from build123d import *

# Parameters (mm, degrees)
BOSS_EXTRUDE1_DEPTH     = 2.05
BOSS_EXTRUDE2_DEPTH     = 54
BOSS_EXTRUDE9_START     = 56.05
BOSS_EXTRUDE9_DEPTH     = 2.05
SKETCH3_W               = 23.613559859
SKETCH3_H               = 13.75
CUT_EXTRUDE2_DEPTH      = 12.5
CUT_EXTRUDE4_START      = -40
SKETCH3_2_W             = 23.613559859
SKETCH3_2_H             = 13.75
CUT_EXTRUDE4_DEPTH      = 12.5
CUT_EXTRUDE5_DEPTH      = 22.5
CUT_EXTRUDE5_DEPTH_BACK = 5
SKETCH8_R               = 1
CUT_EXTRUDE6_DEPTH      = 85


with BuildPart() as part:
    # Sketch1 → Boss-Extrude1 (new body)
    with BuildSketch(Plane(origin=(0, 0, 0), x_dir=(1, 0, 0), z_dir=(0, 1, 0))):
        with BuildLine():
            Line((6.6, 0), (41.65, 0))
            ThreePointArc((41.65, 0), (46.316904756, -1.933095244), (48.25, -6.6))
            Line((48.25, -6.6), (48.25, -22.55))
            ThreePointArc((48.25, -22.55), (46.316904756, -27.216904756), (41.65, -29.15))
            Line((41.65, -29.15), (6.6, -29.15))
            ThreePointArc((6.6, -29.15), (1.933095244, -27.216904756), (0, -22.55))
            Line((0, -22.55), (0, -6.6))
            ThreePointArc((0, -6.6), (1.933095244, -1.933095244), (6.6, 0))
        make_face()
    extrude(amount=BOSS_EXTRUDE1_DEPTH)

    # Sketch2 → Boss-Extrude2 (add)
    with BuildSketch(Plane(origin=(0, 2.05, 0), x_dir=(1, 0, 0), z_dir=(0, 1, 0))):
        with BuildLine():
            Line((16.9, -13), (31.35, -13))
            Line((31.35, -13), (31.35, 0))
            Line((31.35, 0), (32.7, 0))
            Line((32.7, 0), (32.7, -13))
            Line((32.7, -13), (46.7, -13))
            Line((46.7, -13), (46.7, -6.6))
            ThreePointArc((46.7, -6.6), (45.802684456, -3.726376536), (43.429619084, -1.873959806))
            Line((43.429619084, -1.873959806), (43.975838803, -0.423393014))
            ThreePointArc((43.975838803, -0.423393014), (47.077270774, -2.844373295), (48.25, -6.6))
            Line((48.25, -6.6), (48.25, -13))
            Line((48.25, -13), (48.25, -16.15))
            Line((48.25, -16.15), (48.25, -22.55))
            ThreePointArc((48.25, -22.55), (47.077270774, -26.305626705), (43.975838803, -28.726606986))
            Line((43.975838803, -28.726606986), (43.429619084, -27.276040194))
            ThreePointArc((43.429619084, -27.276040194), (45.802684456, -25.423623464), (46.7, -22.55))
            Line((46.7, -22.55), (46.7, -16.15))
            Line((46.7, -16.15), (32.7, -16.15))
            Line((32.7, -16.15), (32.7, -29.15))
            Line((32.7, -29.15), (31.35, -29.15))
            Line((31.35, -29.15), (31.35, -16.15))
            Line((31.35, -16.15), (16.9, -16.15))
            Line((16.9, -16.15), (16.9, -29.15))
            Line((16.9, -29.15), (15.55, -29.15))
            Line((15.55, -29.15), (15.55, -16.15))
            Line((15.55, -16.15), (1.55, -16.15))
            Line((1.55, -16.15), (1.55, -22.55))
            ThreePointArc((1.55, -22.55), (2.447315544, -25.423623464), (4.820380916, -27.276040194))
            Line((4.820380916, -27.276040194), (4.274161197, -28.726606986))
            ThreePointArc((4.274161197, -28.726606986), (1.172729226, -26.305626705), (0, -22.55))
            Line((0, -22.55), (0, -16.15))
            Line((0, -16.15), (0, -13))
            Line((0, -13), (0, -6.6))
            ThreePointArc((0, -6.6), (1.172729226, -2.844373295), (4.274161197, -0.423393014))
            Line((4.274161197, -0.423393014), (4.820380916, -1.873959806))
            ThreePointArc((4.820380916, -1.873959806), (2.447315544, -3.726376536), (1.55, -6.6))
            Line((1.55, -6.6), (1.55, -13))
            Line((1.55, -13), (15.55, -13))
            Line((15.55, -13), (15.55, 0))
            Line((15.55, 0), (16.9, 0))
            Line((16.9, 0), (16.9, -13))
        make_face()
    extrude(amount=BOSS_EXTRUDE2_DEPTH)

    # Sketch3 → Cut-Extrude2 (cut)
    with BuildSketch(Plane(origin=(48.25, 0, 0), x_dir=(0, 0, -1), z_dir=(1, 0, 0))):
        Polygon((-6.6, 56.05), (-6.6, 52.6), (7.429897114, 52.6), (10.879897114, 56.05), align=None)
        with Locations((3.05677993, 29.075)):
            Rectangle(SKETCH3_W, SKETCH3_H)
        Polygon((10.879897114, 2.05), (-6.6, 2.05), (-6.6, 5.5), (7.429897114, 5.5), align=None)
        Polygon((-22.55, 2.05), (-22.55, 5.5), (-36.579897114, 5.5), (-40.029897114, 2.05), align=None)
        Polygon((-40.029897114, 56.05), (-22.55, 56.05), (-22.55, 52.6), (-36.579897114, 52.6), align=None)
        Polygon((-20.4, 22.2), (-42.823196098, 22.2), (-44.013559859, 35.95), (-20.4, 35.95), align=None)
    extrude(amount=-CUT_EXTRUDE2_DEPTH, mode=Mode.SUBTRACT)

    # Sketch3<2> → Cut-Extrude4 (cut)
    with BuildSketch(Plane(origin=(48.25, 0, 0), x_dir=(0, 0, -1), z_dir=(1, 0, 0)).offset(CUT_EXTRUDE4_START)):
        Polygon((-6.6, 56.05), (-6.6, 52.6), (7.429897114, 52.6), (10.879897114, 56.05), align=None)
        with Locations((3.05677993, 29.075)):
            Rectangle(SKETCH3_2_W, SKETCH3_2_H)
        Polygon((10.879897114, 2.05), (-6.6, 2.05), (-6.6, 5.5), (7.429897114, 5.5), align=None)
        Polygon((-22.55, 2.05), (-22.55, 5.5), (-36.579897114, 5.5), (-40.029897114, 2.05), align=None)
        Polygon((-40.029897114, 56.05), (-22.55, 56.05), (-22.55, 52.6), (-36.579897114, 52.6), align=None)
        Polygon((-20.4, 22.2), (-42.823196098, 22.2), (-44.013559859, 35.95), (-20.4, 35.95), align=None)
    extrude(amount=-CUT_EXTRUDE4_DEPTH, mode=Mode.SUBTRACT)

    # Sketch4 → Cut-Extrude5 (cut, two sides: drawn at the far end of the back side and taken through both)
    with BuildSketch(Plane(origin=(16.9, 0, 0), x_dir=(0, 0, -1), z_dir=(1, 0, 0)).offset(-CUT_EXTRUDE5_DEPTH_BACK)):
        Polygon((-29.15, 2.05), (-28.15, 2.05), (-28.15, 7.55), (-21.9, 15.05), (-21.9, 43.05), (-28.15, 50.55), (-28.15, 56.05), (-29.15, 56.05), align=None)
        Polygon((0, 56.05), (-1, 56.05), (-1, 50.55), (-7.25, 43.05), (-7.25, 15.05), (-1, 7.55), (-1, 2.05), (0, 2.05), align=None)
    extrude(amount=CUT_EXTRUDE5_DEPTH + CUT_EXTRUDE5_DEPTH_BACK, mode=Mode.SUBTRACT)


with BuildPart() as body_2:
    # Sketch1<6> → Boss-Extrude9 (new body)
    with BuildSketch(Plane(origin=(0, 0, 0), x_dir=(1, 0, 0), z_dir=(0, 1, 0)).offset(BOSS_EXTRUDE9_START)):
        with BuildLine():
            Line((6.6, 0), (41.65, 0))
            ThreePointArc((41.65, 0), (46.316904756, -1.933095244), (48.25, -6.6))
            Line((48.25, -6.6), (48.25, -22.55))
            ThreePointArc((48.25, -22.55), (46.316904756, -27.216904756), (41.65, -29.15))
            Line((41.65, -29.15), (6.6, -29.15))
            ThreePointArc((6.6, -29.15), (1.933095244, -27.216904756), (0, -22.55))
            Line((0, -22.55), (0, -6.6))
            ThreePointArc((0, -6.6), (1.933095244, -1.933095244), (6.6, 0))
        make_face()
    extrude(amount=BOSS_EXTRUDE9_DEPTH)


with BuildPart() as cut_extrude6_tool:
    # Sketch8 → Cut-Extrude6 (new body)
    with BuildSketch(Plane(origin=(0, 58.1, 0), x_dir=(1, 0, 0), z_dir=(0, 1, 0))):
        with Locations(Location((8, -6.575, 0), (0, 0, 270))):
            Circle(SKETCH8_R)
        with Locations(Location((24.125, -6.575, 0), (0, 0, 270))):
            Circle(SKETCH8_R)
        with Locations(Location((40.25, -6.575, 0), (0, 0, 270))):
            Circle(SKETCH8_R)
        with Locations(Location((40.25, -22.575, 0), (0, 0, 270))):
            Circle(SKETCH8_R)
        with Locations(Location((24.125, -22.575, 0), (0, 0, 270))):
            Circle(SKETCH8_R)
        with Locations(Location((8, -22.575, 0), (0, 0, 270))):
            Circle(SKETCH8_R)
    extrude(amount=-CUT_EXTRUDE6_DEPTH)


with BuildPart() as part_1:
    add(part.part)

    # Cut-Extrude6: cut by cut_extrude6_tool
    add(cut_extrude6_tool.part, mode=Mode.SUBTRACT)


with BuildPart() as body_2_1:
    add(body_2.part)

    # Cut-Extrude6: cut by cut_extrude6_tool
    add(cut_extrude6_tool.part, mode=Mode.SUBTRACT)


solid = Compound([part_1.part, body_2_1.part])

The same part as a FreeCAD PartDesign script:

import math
import FreeCAD as App
import Part
import Sketcher

V = App.Vector
Q = App.Units.Quantity


def add_polygon(sketch, points):
    """Adds a closed chain of lines whose ends are joined by coincident constraints."""
    first, n = sketch.GeometryCount, len(points)
    for a, b in zip(points, points[1:] + points[:1]):
        sketch.addGeometry(Part.LineSegment(App.Vector(*a, 0), App.Vector(*b, 0)), False)
    for i in range(n):
        sketch.addConstraint(Sketcher.Constraint("Coincident", first + i, 2, first + (i + 1) % n, 1))

doc = App.newDocument("Part")
body = doc.addObject("PartDesign::Body", "Body")

sketch1 = body.newObject("Sketcher::SketchObject", "Sketch")
sketch1.AttachmentSupport = (doc.getObject("XZ_Plane"), [""])
sketch1.MapMode = "FlatFace"
sketch1.addGeometry([
    Part.LineSegment(V(41.65, 0, 0), V(6.6, 0, 0)),
    Part.ArcOfCircle(Part.Circle(V(6.6, 6.6, 0), V(0, 0, 1), 6.6), math.radians(180), math.radians(270)),
    Part.LineSegment(V(0, 6.6, 0), V(0, 22.55, 0)),
    Part.ArcOfCircle(Part.Circle(V(6.6, 22.55, 0), V(0, 0, 1), 6.6), math.radians(90), math.radians(180)),
    Part.LineSegment(V(6.6, 29.15, 0), V(41.65, 29.15, 0)),
    Part.ArcOfCircle(Part.Circle(V(41.65, 22.55, 0), V(0, 0, 1), 6.6), math.radians(0), math.radians(90)),
    Part.LineSegment(V(48.25, 22.55, 0), V(48.25, 6.6, 0)),
    Part.ArcOfCircle(Part.Circle(V(41.65, 6.6, 0), V(0, 0, 1), 6.6), math.radians(-90), math.radians(0)),
], False)
sketch1.addConstraint([
    Sketcher.Constraint("Tangent", 0, 2, 1, 2),
    Sketcher.Constraint("Tangent", 1, 1, 2, 1),
    Sketcher.Constraint("Tangent", 2, 2, 3, 2),
    Sketcher.Constraint("Tangent", 3, 1, 4, 1),
    Sketcher.Constraint("Tangent", 4, 2, 5, 2),
    Sketcher.Constraint("Tangent", 5, 1, 6, 1),
    Sketcher.Constraint("Tangent", 6, 2, 7, 2),
    Sketcher.Constraint("Tangent", 7, 1, 0, 1),
    Sketcher.Constraint("Horizontal", 0),
    Sketcher.Constraint("Vertical", 2),
    Sketcher.Constraint("Horizontal", 4),
    Sketcher.Constraint("Vertical", 6),
    Sketcher.Constraint("Equal", 1, 3),
    Sketcher.Constraint("Equal", 3, 5),
    Sketcher.Constraint("Equal", 5, 7),
    Sketcher.Constraint("PointOnObject", 0, 2, -1),
    Sketcher.Constraint("PointOnObject", 1, 1, -2),
    Sketcher.Constraint("Radius", 1, Q("6.6 mm")),
    Sketcher.Constraint("DistanceX", 0, 2, 0, 1, Q("35.05 mm")),
    Sketcher.Constraint("DistanceY", 2, 1, 2, 2, Q("15.95 mm")),
])
pad1 = body.newObject("PartDesign::Pad", "Pad")
pad1.Profile = sketch1
pad1.Length = 2.05
pad1.Reversed = True

sketch2 = body.newObject("Sketcher::SketchObject", "Sketch001")
sketch2.AttachmentSupport = (doc.getObject("XZ_Plane"), [""])
sketch2.MapMode = "FlatFace"
sketch2.AttachmentOffset = App.Placement(V(0, 0, -2.05), App.Rotation())
sketch2.addGeometry([
    Part.LineSegment(V(31.35, 13, 0), V(16.9, 13, 0)),
    Part.LineSegment(V(16.9, 13, 0), V(16.9, 0, 0)),
    Part.LineSegment(V(16.9, 0, 0), V(15.55, 0, 0)),
    Part.LineSegment(V(15.55, 0, 0), V(15.55, 13, 0)),
    Part.LineSegment(V(15.55, 13, 0), V(1.55, 13, 0)),
    Part.LineSegment(V(1.55, 13, 0), V(1.55, 6.6, 0)),
    Part.ArcOfCircle(Part.Circle(V(6.6, 6.6, 0), V(0, 0, 1), 5.05), math.radians(180), math.radians(249.365831)),
    Part.LineSegment(V(4.820381, 1.87396, 0), V(4.274161, 0.423393, 0)),
    Part.ArcOfCircle(Part.Circle(V(6.6, 6.6, 0), V(0, 0, 1), 6.6), math.radians(180), math.radians(249.365831)),
    Part.LineSegment(V(0, 6.6, 0), V(0, 22.55, 0)),
    Part.ArcOfCircle(Part.Circle(V(6.6, 22.55, 0), V(0, 0, 1), 6.6), math.radians(110.634169), math.radians(180)),
    Part.LineSegment(V(4.274161, 28.726607, 0), V(4.820381, 27.27604, 0)),
    Part.ArcOfCircle(Part.Circle(V(6.6, 22.55, 0), V(0, 0, 1), 5.05), math.radians(110.634169), math.radians(180)),
    Part.LineSegment(V(1.55, 22.55, 0), V(1.55, 16.15, 0)),
    Part.LineSegment(V(1.55, 16.15, 0), V(15.55, 16.15, 0)),
    Part.LineSegment(V(15.55, 16.15, 0), V(15.55, 29.15, 0)),
    Part.LineSegment(V(15.55, 29.15, 0), V(16.9, 29.15, 0)),
    Part.LineSegment(V(16.9, 29.15, 0), V(16.9, 16.15, 0)),
    Part.LineSegment(V(16.9, 16.15, 0), V(31.35, 16.15, 0)),
    Part.LineSegment(V(31.35, 16.15, 0), V(31.35, 29.15, 0)),
    Part.LineSegment(V(31.35, 29.15, 0), V(32.7, 29.15, 0)),
    Part.LineSegment(V(32.7, 29.15, 0), V(32.7, 16.15, 0)),
    Part.LineSegment(V(32.7, 16.15, 0), V(46.7, 16.15, 0)),
    Part.LineSegment(V(46.7, 16.15, 0), V(46.7, 22.55, 0)),
    Part.ArcOfCircle(Part.Circle(V(41.65, 22.55, 0), V(0, 0, 1), 5.05), math.radians(0), math.radians(69.365831)),
    Part.LineSegment(V(43.429619, 27.27604, 0), V(43.975839, 28.726607, 0)),
    Part.ArcOfCircle(Part.Circle(V(41.65, 22.55, 0), V(0, 0, 1), 6.6), math.radians(0), math.radians(69.365831)),
    Part.LineSegment(V(48.25, 22.55, 0), V(48.25, 6.6, 0)),
    Part.ArcOfCircle(Part.Circle(V(41.65, 6.6, 0), V(0, 0, 1), 6.6), math.radians(-69.365831), math.radians(0)),
    Part.LineSegment(V(43.975839, 0.423393, 0), V(43.429619, 1.87396, 0)),
    Part.ArcOfCircle(Part.Circle(V(41.65, 6.6, 0), V(0, 0, 1), 5.05), math.radians(-69.365831), math.radians(0)),
    Part.LineSegment(V(46.7, 6.6, 0), V(46.7, 13, 0)),
    Part.LineSegment(V(46.7, 13, 0), V(32.7, 13, 0)),
    Part.LineSegment(V(32.7, 13, 0), V(32.7, 0, 0)),
    Part.LineSegment(V(32.7, 0, 0), V(31.35, 0, 0)),
    Part.LineSegment(V(31.35, 0, 0), V(31.35, 13, 0)),
], False)
sketch2.addConstraint([
    Sketcher.Constraint("Coincident", 0, 2, 1, 1),
    Sketcher.Constraint("Coincident", 1, 2, 2, 1),
    Sketcher.Constraint("Coincident", 2, 2, 3, 1),
    Sketcher.Constraint("Coincident", 3, 2, 4, 1),
    Sketcher.Constraint("Coincident", 4, 2, 5, 1),
    Sketcher.Constraint("Tangent", 5, 2, 6, 1),
    Sketcher.Constraint("Coincident", 6, 2, 7, 1),
    Sketcher.Constraint("Coincident", 7, 2, 8, 2),
    Sketcher.Constraint("Tangent", 8, 1, 9, 1),
    Sketcher.Constraint("Tangent", 9, 2, 10, 2),
    Sketcher.Constraint("Coincident", 10, 1, 11, 1),
    Sketcher.Constraint("Coincident", 11, 2, 12, 1),
    Sketcher.Constraint("Tangent", 12, 2, 13, 1),
    Sketcher.Constraint("Coincident", 13, 2, 14, 1),
    Sketcher.Constraint("Coincident", 14, 2, 15, 1),
    Sketcher.Constraint("Coincident", 15, 2, 16, 1),
    Sketcher.Constraint("Coincident", 16, 2, 17, 1),
    Sketcher.Constraint("Coincident", 17, 2, 18, 1),
    Sketcher.Constraint("Coincident", 18, 2, 19, 1),
    Sketcher.Constraint("Coincident", 19, 2, 20, 1),
    Sketcher.Constraint("Coincident", 20, 2, 21, 1),
    Sketcher.Constraint("Coincident", 21, 2, 22, 1),
    Sketcher.Constraint("Coincident", 22, 2, 23, 1),
    Sketcher.Constraint("Tangent", 23, 2, 24, 1),
    Sketcher.Constraint("Coincident", 24, 2, 25, 1),
    Sketcher.Constraint("Coincident", 25, 2, 26, 2),
    Sketcher.Constraint("Tangent", 26, 1, 27, 1),
    Sketcher.Constraint("Tangent", 27, 2, 28, 2),
    Sketcher.Constraint("Coincident", 28, 1, 29, 1),
    Sketcher.Constraint("Coincident", 29, 2, 30, 1),
    Sketcher.Constraint("Tangent", 30, 2, 31, 1),
    Sketcher.Constraint("Coincident", 31, 2, 32, 1),
    Sketcher.Constraint("Coincident", 32, 2, 33, 1),
    Sketcher.Constraint("Coincident", 33, 2, 34, 1),
    Sketcher.Constraint("Coincident", 34, 2, 35, 1),
    Sketcher.Constraint("Coincident", 35, 2, 0, 1),
    Sketcher.Constraint("Horizontal", 0),
    Sketcher.Constraint("Vertical", 1),
    Sketcher.Constraint("Horizontal", 2),
    Sketcher.Constraint("Vertical", 3),
    Sketcher.Constraint("Horizontal", 4),
    Sketcher.Constraint("Vertical", 5),
    Sketcher.Constraint("Vertical", 9),
    Sketcher.Constraint("Vertical", 13),
    Sketcher.Constraint("Horizontal", 14),
    Sketcher.Constraint("Vertical", 15),
    Sketcher.Constraint("Horizontal", 16),
    Sketcher.Constraint("Vertical", 17),
    Sketcher.Constraint("Horizontal", 18),
    Sketcher.Constraint("Vertical", 19),
    Sketcher.Constraint("Horizontal", 20),
    Sketcher.Constraint("Vertical", 21),
    Sketcher.Constraint("Horizontal", 22),
    Sketcher.Constraint("Vertical", 23),
    Sketcher.Constraint("Vertical", 27),
    Sketcher.Constraint("Vertical", 31),
    Sketcher.Constraint("Horizontal", 32),
    Sketcher.Constraint("Vertical", 33),
    Sketcher.Constraint("Horizontal", 34),
    Sketcher.Constraint("Vertical", 35),
    Sketcher.Constraint("Coincident", 8, 3, 6, 3),
    Sketcher.Constraint("Coincident", 12, 3, 10, 3),
    Sketcher.Constraint("Coincident", 26, 3, 24, 3),
    Sketcher.Constraint("Coincident", 30, 3, 28, 3),
    Sketcher.Constraint("Equal", 8, 10),
    Sketcher.Constraint("Equal", 6, 12),
    Sketcher.Constraint("Equal", 12, 24),
    Sketcher.Constraint("Equal", 10, 26),
    Sketcher.Constraint("Equal", 26, 28),
    Sketcher.Constraint("Equal", 24, 30),
    Sketcher.Constraint("PointOnObject", 1, 2, -1),
    Sketcher.Constraint("PointOnObject", 8, 1, -2),
    Sketcher.Constraint("PointOnObject", 33, 2, -1),
    Sketcher.Constraint("Parallel", 7, 25),
    Sketcher.Constraint("Parallel", 11, 29),
    Sketcher.Constraint("Horizontal", 12, 3, 24, 3),
    Sketcher.Constraint("Horizontal", 8, 3, 28, 3),
    Sketcher.Constraint("Horizontal", 0, 2, 3, 2),
    Sketcher.Constraint("Horizontal", 14, 2, 17, 2),
    Sketcher.Constraint("Horizontal", 16, 2, 19, 2),
    Sketcher.Constraint("Horizontal", 18, 2, 21, 2),
    Sketcher.Constraint("Horizontal", 11, 2, 24, 2),
    Sketcher.Constraint("Horizontal", 10, 1, 25, 2),
    Sketcher.Constraint("Horizontal", 7, 2, 28, 1),
    Sketcher.Constraint("Horizontal", 4, 2, 31, 2),
    Sketcher.Constraint("Vertical", 7, 2, 10, 1),
    Sketcher.Constraint("Vertical", 3, 2, 14, 2),
    Sketcher.Constraint("Vertical", 1, 2, 16, 2),
    Sketcher.Constraint("Vertical", 21, 2, 32, 2),
    Sketcher.Constraint("Vertical", 19, 2, 34, 2),
    Sketcher.Constraint("Equal", 16, 20),
    Sketcher.Constraint("Equal", 14, 22),
    Sketcher.Constraint("Equal", 5, 13),
    Sketcher.Constraint("Equal", 3, 15),
    Sketcher.Constraint("Radius", 8, Q("6.6 mm")),
    Sketcher.Constraint("DistanceX", 4, 2, 4, 1, Q("14 mm")),
    Sketcher.Constraint("DistanceY", 1, 2, 1, 1, Q("13 mm")),
    Sketcher.Constraint("Radius", 6, Q("5.05 mm")),
    Sketcher.Constraint("DistanceY", 5, 2, 5, 1, Q("6.4 mm")),
    Sketcher.Constraint("DistanceX", 0, 2, 0, 1, Q("14.45 mm")),
    Sketcher.Constraint("DistanceX", 2, 2, 2, 1, Q("1.35 mm")),
    Sketcher.Constraint("DistanceY", 9, 1, 9, 2, Q("15.95 mm")),
    Sketcher.Constraint("DistanceX", -1, 1, 6, 2, Q("4.820381 mm")),
    Sketcher.Constraint("DistanceX", -1, 1, 7, 2, Q("4.274161 mm")),
])
pad2 = body.newObject("PartDesign::Pad", "Pad001")
pad2.Profile = sketch2
pad2.Length = 54
pad2.Reversed = True

sketch3 = body.newObject("Sketcher::SketchObject", "Sketch002")
sketch3.AttachmentSupport = (doc.getObject("YZ_Plane"), [""])
sketch3.MapMode = "FlatFace"
sketch3.AttachmentOffset = App.Placement(V(0, 0, 48.25), App.Rotation())
add_polygon(sketch3, [(56.05, 6.6), (52.6, 6.6), (52.6, -7.429897), (56.05, -10.879897)])
add_polygon(sketch3, [(35.95, 8.75), (22.2, 8.75), (22.2, -14.86356), (35.95, -14.86356)])
add_polygon(sketch3, [(2.05, 6.6), (2.05, -10.879897), (5.5, -7.429897), (5.5, 6.6)])
add_polygon(sketch3, [(2.05, 22.55), (5.5, 22.55), (5.5, 36.579897), (2.05, 40.029897)])
add_polygon(sketch3, [(56.05, 22.55), (56.05, 40.029897), (52.6, 36.579897), (52.6, 22.55)])
add_polygon(sketch3, [(22.2, 42.823196), (22.2, 20.4), (35.95, 20.4), (35.95, 44.01356)])
sketch3.addConstraint([
    Sketcher.Constraint("Horizontal", 0),
    Sketcher.Constraint("Vertical", 1),
    Sketcher.Constraint("Vertical", 3),
    Sketcher.Constraint("Horizontal", 4),
    Sketcher.Constraint("Vertical", 5),
    Sketcher.Constraint("Horizontal", 6),
    Sketcher.Constraint("Vertical", 7),
    Sketcher.Constraint("Vertical", 8),
    Sketcher.Constraint("Vertical", 10),
    Sketcher.Constraint("Horizontal", 11),
    Sketcher.Constraint("Horizontal", 12),
    Sketcher.Constraint("Vertical", 13),
    Sketcher.Constraint("Vertical", 15),
    Sketcher.Constraint("Vertical", 16),
    Sketcher.Constraint("Vertical", 18),
    Sketcher.Constraint("Horizontal", 19),
    Sketcher.Constraint("Vertical", 20),
    Sketcher.Constraint("Horizontal", 21),
    Sketcher.Constraint("Vertical", 22),
    Sketcher.Constraint("Perpendicular", 2, 9),
    Sketcher.Constraint("Perpendicular", 9, 14),
    Sketcher.Constraint("Perpendicular", 14, 17),
    Sketcher.Constraint("Horizontal", 2, 2, 8, 2),
    Sketcher.Constraint("Horizontal", 1, 2, 9, 2),
    Sketcher.Constraint("Horizontal", 3, 2, 10, 2),
    Sketcher.Constraint("Horizontal", 14, 2, 16, 2),
    Sketcher.Constraint("Horizontal", 13, 2, 17, 2),
    Sketcher.Constraint("Horizontal", 15, 2, 18, 2),
    Sketcher.Constraint("Vertical", 10, 2, 12, 2),
    Sketcher.Constraint("Vertical", 11, 2, 14, 2),
    Sketcher.Constraint("Vertical", 3, 2, 16, 2),
    Sketcher.Constraint("Vertical", 1, 2, 17, 2),
    Sketcher.Constraint("Vertical", 5, 2, 20, 2),
    Sketcher.Constraint("Vertical", 7, 2, 21, 2),
    Sketcher.Constraint("Equal", 10, 13),
    Sketcher.Constraint("Equal", 7, 22),
    Sketcher.Constraint("DistanceX", 0, 2, 0, 1, Q("3.45 mm")),
    Sketcher.Constraint("DistanceX", 4, 2, 4, 1, Q("13.75 mm")),
    Sketcher.Constraint("DistanceX", -1, 1, 0, 2, Q("52.6 mm")),
    Sketcher.Constraint("DistanceY", -1, 1, 0, 2, Q("6.6 mm")),
    Sketcher.Constraint("DistanceX", -1, 1, 4, 2, Q("22.2 mm")),
    Sketcher.Constraint("DistanceX", -1, 1, 9, 2, Q("5.5 mm")),
    Sketcher.Constraint("DistanceY", -1, 1, 20, 2, Q("20.4 mm")),
    Sketcher.Constraint("DistanceY", 4, 2, 12, 2, Q("13.8 mm")),
    Sketcher.Constraint("DistanceY", -1, 1, 4, 2, Q("8.75 mm")),
    Sketcher.Constraint("DistanceY", 5, 2, 5, 1, Q("23.61356 mm")),
    Sketcher.Constraint("DistanceY", 13, 2, 23, 2, Q("6.243299 mm")),
    Sketcher.Constraint("Distance", 23, Q("13.80143 mm")),
])
pocket1 = body.newObject("PartDesign::Pocket", "Pocket")
pocket1.Profile = sketch3
pocket1.Length = 12.5

sketch4 = body.newObject("Sketcher::SketchObject", "Sketch003")
sketch4.AttachmentSupport = (doc.getObject("YZ_Plane"), [""])
sketch4.MapMode = "FlatFace"
sketch4.AttachmentOffset = App.Placement(V(0, 0, 8.25), App.Rotation())
add_polygon(sketch4, [(56.05, 6.6), (52.6, 6.6), (52.6, -7.429897), (56.05, -10.879897)])
add_polygon(sketch4, [(35.95, 8.75), (22.2, 8.75), (22.2, -14.86356), (35.95, -14.86356)])
add_polygon(sketch4, [(2.05, 6.6), (2.05, -10.879897), (5.5, -7.429897), (5.5, 6.6)])
add_polygon(sketch4, [(2.05, 22.55), (5.5, 22.55), (5.5, 36.579897), (2.05, 40.029897)])
add_polygon(sketch4, [(56.05, 22.55), (56.05, 40.029897), (52.6, 36.579897), (52.6, 22.55)])
add_polygon(sketch4, [(22.2, 42.823196), (22.2, 20.4), (35.95, 20.4), (35.95, 44.01356)])
sketch4.addConstraint([
    Sketcher.Constraint("Horizontal", 0),
    Sketcher.Constraint("Vertical", 1),
    Sketcher.Constraint("Vertical", 3),
    Sketcher.Constraint("Horizontal", 4),
    Sketcher.Constraint("Vertical", 5),
    Sketcher.Constraint("Horizontal", 6),
    Sketcher.Constraint("Vertical", 7),
    Sketcher.Constraint("Vertical", 8),
    Sketcher.Constraint("Vertical", 10),
    Sketcher.Constraint("Horizontal", 11),
    Sketcher.Constraint("Horizontal", 12),
    Sketcher.Constraint("Vertical", 13),
    Sketcher.Constraint("Vertical", 15),
    Sketcher.Constraint("Vertical", 16),
    Sketcher.Constraint("Vertical", 18),
    Sketcher.Constraint("Horizontal", 19),
    Sketcher.Constraint("Vertical", 20),
    Sketcher.Constraint("Horizontal", 21),
    Sketcher.Constraint("Vertical", 22),
    Sketcher.Constraint("Perpendicular", 2, 9),
    Sketcher.Constraint("Perpendicular", 9, 14),
    Sketcher.Constraint("Perpendicular", 14, 17),
    Sketcher.Constraint("Horizontal", 2, 2, 8, 2),
    Sketcher.Constraint("Horizontal", 1, 2, 9, 2),
    Sketcher.Constraint("Horizontal", 3, 2, 10, 2),
    Sketcher.Constraint("Horizontal", 14, 2, 16, 2),
    Sketcher.Constraint("Horizontal", 13, 2, 17, 2),
    Sketcher.Constraint("Horizontal", 15, 2, 18, 2),
    Sketcher.Constraint("Vertical", 10, 2, 12, 2),
    Sketcher.Constraint("Vertical", 11, 2, 14, 2),
    Sketcher.Constraint("Vertical", 3, 2, 16, 2),
    Sketcher.Constraint("Vertical", 1, 2, 17, 2),
    Sketcher.Constraint("Vertical", 5, 2, 20, 2),
    Sketcher.Constraint("Vertical", 7, 2, 21, 2),
    Sketcher.Constraint("Equal", 10, 13),
    Sketcher.Constraint("Equal", 7, 22),
    Sketcher.Constraint("DistanceX", 0, 2, 0, 1, Q("3.45 mm")),
    Sketcher.Constraint("DistanceX", 4, 2, 4, 1, Q("13.75 mm")),
    Sketcher.Constraint("DistanceX", -1, 1, 0, 2, Q("52.6 mm")),
    Sketcher.Constraint("DistanceY", -1, 1, 0, 2, Q("6.6 mm")),
    Sketcher.Constraint("DistanceX", -1, 1, 4, 2, Q("22.2 mm")),
    Sketcher.Constraint("DistanceX", -1, 1, 9, 2, Q("5.5 mm")),
    Sketcher.Constraint("DistanceY", -1, 1, 20, 2, Q("20.4 mm")),
    Sketcher.Constraint("DistanceY", 4, 2, 12, 2, Q("13.8 mm")),
    Sketcher.Constraint("DistanceY", -1, 1, 4, 2, Q("8.75 mm")),
    Sketcher.Constraint("DistanceY", 5, 2, 5, 1, Q("23.61356 mm")),
    Sketcher.Constraint("DistanceY", 13, 2, 23, 2, Q("6.243299 mm")),
    Sketcher.Constraint("Distance", 23, Q("13.80143 mm")),
])
pocket2 = body.newObject("PartDesign::Pocket", "Pocket001")
pocket2.Profile = sketch4
pocket2.Length = 12.5

sketch5 = body.newObject("Sketcher::SketchObject", "Sketch004")
sketch5.AttachmentSupport = (doc.getObject("YZ_Plane"), [""])
sketch5.MapMode = "FlatFace"
sketch5.AttachmentOffset = App.Placement(V(0, 0, 16.9), App.Rotation())
add_polygon(sketch5, [(2.05, 29.15), (2.05, 28.15), (7.55, 28.15), (15.05, 21.9), (43.05, 21.9), (50.55, 28.15), (56.05, 28.15), (56.05, 29.15)])
add_polygon(sketch5, [(56.05, 0), (56.05, 1), (50.55, 1), (43.05, 7.25), (15.05, 7.25), (7.55, 1), (2.05, 1), (2.05, 0)])
sketch5.addConstraint([
    Sketcher.Constraint("Vertical", 0),
    Sketcher.Constraint("Horizontal", 1),
    Sketcher.Constraint("Horizontal", 3),
    Sketcher.Constraint("Horizontal", 5),
    Sketcher.Constraint("Vertical", 6),
    Sketcher.Constraint("Horizontal", 7),
    Sketcher.Constraint("Vertical", 8),
    Sketcher.Constraint("Horizontal", 9),
    Sketcher.Constraint("Horizontal", 11),
    Sketcher.Constraint("Horizontal", 13),
    Sketcher.Constraint("Vertical", 14),
    Sketcher.Constraint("Horizontal", 15),
    Sketcher.Constraint("PointOnObject", 14, 2, -1),
    Sketcher.Constraint("Parallel", 2, 10),
    Sketcher.Constraint("Parallel", 4, 12),
    Sketcher.Constraint("Horizontal", 1, 2, 4, 2),
    Sketcher.Constraint("Horizontal", 9, 2, 12, 2),
    Sketcher.Constraint("Vertical", 6, 2, 8, 2),
    Sketcher.Constraint("Vertical", 4, 2, 9, 2),
    Sketcher.Constraint("Vertical", 3, 2, 10, 2),
    Sketcher.Constraint("Vertical", 2, 2, 11, 2),
    Sketcher.Constraint("Vertical", 1, 2, 12, 2),
    Sketcher.Constraint("Vertical", 7, 2, 13, 2),
    Sketcher.Constraint("Equal", 1, 5),
    Sketcher.Constraint("Equal", 6, 8),
    Sketcher.Constraint("DistanceX", 3, 1, 3, 2, Q("28 mm")),
    Sketcher.Constraint("DistanceX", 7, 2, 7, 1, Q("54 mm")),
    Sketcher.Constraint("DistanceY", 0, 2, 0, 1, Q("1 mm")),
    Sketcher.Constraint("DistanceX", 1, 1, 1, 2, Q("5.5 mm")),
    Sketcher.Constraint("DistanceY", -1, 1, 2, 2, Q("21.9 mm")),
    Sketcher.Constraint("DistanceX", -1, 1, 0, 2, Q("2.05 mm")),
    Sketcher.Constraint("DistanceY", -1, 1, 0, 2, Q("28.15 mm")),
])
pocket3 = body.newObject("PartDesign::Pocket", "Pocket002")
pocket3.Profile = sketch5
pocket3.Type = "TwoLengths"
pocket3.Length = 22.5
pocket3.Length2 = 5
pocket3.Reversed = True
body2 = doc.addObject("PartDesign::Body", "Body001")

sketch6 = body2.newObject("Sketcher::SketchObject", "Sketch005")
sketch6.AttachmentSupport = (doc.getObject("XZ_Plane001"), [""])
sketch6.MapMode = "FlatFace"
sketch6.AttachmentOffset = App.Placement(V(0, 0, -56.05), App.Rotation())
sketch6.addGeometry([
    Part.LineSegment(V(41.65, 0, 0), V(6.6, 0, 0)),
    Part.ArcOfCircle(Part.Circle(V(6.6, 6.6, 0), V(0, 0, 1), 6.6), math.radians(180), math.radians(270)),
    Part.LineSegment(V(0, 6.6, 0), V(0, 22.55, 0)),
    Part.ArcOfCircle(Part.Circle(V(6.6, 22.55, 0), V(0, 0, 1), 6.6), math.radians(90), math.radians(180)),
    Part.LineSegment(V(6.6, 29.15, 0), V(41.65, 29.15, 0)),
    Part.ArcOfCircle(Part.Circle(V(41.65, 22.55, 0), V(0, 0, 1), 6.6), math.radians(0), math.radians(90)),
    Part.LineSegment(V(48.25, 22.55, 0), V(48.25, 6.6, 0)),
    Part.ArcOfCircle(Part.Circle(V(41.65, 6.6, 0), V(0, 0, 1), 6.6), math.radians(-90), math.radians(0)),
], False)
sketch6.addConstraint([
    Sketcher.Constraint("Tangent", 0, 2, 1, 2),
    Sketcher.Constraint("Tangent", 1, 1, 2, 1),
    Sketcher.Constraint("Tangent", 2, 2, 3, 2),
    Sketcher.Constraint("Tangent", 3, 1, 4, 1),
    Sketcher.Constraint("Tangent", 4, 2, 5, 2),
    Sketcher.Constraint("Tangent", 5, 1, 6, 1),
    Sketcher.Constraint("Tangent", 6, 2, 7, 2),
    Sketcher.Constraint("Tangent", 7, 1, 0, 1),
    Sketcher.Constraint("Horizontal", 0),
    Sketcher.Constraint("Vertical", 2),
    Sketcher.Constraint("Horizontal", 4),
    Sketcher.Constraint("Vertical", 6),
    Sketcher.Constraint("Equal", 1, 3),
    Sketcher.Constraint("Equal", 3, 5),
    Sketcher.Constraint("Equal", 5, 7),
    Sketcher.Constraint("PointOnObject", 0, 2, -1),
    Sketcher.Constraint("PointOnObject", 1, 1, -2),
    Sketcher.Constraint("Radius", 1, Q("6.6 mm")),
    Sketcher.Constraint("DistanceX", 0, 2, 0, 1, Q("35.05 mm")),
    Sketcher.Constraint("DistanceY", 2, 1, 2, 2, Q("15.95 mm")),
])
pad3 = body2.newObject("PartDesign::Pad", "Pad002")
pad3.Profile = sketch6
pad3.Length = 2.05
pad3.Reversed = True
body3 = doc.addObject("PartDesign::Body", "Body002")
body3.AllowCompound = True

sketch7 = body3.newObject("Sketcher::SketchObject", "Sketch006")
sketch7.AttachmentSupport = (doc.getObject("XZ_Plane002"), [""])
sketch7.MapMode = "FlatFace"
sketch7.AttachmentOffset = App.Placement(V(0, 0, -58.1), App.Rotation())
sketch7.addGeometry([
    Part.Circle(V(8, 6.575, 0), V(0, 0, 1), 1),
    Part.Circle(V(24.125, 6.575, 0), V(0, 0, 1), 1),
    Part.Circle(V(40.25, 6.575, 0), V(0, 0, 1), 1),
    Part.Circle(V(40.25, 22.575, 0), V(0, 0, 1), 1),
    Part.Circle(V(24.125, 22.575, 0), V(0, 0, 1), 1),
    Part.Circle(V(8, 22.575, 0), V(0, 0, 1), 1),
], False)
sketch7.addConstraint([
    Sketcher.Constraint("Equal", 0, 1),
    Sketcher.Constraint("Equal", 1, 2),
    Sketcher.Constraint("Equal", 2, 3),
    Sketcher.Constraint("Equal", 3, 4),
    Sketcher.Constraint("Equal", 4, 5),
    Sketcher.Constraint("Horizontal", 0, 3, 1, 3),
    Sketcher.Constraint("Horizontal", 1, 3, 2, 3),
    Sketcher.Constraint("Horizontal", 3, 3, 4, 3),
    Sketcher.Constraint("Horizontal", 4, 3, 5, 3),
    Sketcher.Constraint("Vertical", 2, 3, 3, 3),
    Sketcher.Constraint("Vertical", 1, 3, 4, 3),
    Sketcher.Constraint("Vertical", 0, 3, 5, 3),
    Sketcher.Constraint("Diameter", 0, Q("2 mm")),
    Sketcher.Constraint("DistanceX", -1, 1, 0, 3, Q("8 mm")),
    Sketcher.Constraint("DistanceY", 2, 3, 3, 3, Q("16 mm")),
    Sketcher.Constraint("DistanceX", -1, 1, 2, 3, Q("40.25 mm")),
    Sketcher.Constraint("DistanceY", -1, 1, 0, 3, Q("6.575 mm")),
    Sketcher.Constraint("DistanceX", -1, 1, 1, 3, Q("24.125 mm")),
])
pad4 = body3.newObject("PartDesign::Pad", "Pad003")
pad4.Profile = sketch7
pad4.Length = 85
doc.recompute()

body4 = doc.addObject("PartDesign::Body", "Body003")
body4.BaseFeature = body3
boolean = body.newObject("PartDesign::Boolean", "Boolean")
boolean.Type = "Cut"
boolean.addObjects([body4])
doc.recompute()

boolean2 = body2.newObject("PartDesign::Boolean", "Boolean001")
boolean2.Type = "Cut"
boolean2.addObjects([body3])

doc.recompute()
